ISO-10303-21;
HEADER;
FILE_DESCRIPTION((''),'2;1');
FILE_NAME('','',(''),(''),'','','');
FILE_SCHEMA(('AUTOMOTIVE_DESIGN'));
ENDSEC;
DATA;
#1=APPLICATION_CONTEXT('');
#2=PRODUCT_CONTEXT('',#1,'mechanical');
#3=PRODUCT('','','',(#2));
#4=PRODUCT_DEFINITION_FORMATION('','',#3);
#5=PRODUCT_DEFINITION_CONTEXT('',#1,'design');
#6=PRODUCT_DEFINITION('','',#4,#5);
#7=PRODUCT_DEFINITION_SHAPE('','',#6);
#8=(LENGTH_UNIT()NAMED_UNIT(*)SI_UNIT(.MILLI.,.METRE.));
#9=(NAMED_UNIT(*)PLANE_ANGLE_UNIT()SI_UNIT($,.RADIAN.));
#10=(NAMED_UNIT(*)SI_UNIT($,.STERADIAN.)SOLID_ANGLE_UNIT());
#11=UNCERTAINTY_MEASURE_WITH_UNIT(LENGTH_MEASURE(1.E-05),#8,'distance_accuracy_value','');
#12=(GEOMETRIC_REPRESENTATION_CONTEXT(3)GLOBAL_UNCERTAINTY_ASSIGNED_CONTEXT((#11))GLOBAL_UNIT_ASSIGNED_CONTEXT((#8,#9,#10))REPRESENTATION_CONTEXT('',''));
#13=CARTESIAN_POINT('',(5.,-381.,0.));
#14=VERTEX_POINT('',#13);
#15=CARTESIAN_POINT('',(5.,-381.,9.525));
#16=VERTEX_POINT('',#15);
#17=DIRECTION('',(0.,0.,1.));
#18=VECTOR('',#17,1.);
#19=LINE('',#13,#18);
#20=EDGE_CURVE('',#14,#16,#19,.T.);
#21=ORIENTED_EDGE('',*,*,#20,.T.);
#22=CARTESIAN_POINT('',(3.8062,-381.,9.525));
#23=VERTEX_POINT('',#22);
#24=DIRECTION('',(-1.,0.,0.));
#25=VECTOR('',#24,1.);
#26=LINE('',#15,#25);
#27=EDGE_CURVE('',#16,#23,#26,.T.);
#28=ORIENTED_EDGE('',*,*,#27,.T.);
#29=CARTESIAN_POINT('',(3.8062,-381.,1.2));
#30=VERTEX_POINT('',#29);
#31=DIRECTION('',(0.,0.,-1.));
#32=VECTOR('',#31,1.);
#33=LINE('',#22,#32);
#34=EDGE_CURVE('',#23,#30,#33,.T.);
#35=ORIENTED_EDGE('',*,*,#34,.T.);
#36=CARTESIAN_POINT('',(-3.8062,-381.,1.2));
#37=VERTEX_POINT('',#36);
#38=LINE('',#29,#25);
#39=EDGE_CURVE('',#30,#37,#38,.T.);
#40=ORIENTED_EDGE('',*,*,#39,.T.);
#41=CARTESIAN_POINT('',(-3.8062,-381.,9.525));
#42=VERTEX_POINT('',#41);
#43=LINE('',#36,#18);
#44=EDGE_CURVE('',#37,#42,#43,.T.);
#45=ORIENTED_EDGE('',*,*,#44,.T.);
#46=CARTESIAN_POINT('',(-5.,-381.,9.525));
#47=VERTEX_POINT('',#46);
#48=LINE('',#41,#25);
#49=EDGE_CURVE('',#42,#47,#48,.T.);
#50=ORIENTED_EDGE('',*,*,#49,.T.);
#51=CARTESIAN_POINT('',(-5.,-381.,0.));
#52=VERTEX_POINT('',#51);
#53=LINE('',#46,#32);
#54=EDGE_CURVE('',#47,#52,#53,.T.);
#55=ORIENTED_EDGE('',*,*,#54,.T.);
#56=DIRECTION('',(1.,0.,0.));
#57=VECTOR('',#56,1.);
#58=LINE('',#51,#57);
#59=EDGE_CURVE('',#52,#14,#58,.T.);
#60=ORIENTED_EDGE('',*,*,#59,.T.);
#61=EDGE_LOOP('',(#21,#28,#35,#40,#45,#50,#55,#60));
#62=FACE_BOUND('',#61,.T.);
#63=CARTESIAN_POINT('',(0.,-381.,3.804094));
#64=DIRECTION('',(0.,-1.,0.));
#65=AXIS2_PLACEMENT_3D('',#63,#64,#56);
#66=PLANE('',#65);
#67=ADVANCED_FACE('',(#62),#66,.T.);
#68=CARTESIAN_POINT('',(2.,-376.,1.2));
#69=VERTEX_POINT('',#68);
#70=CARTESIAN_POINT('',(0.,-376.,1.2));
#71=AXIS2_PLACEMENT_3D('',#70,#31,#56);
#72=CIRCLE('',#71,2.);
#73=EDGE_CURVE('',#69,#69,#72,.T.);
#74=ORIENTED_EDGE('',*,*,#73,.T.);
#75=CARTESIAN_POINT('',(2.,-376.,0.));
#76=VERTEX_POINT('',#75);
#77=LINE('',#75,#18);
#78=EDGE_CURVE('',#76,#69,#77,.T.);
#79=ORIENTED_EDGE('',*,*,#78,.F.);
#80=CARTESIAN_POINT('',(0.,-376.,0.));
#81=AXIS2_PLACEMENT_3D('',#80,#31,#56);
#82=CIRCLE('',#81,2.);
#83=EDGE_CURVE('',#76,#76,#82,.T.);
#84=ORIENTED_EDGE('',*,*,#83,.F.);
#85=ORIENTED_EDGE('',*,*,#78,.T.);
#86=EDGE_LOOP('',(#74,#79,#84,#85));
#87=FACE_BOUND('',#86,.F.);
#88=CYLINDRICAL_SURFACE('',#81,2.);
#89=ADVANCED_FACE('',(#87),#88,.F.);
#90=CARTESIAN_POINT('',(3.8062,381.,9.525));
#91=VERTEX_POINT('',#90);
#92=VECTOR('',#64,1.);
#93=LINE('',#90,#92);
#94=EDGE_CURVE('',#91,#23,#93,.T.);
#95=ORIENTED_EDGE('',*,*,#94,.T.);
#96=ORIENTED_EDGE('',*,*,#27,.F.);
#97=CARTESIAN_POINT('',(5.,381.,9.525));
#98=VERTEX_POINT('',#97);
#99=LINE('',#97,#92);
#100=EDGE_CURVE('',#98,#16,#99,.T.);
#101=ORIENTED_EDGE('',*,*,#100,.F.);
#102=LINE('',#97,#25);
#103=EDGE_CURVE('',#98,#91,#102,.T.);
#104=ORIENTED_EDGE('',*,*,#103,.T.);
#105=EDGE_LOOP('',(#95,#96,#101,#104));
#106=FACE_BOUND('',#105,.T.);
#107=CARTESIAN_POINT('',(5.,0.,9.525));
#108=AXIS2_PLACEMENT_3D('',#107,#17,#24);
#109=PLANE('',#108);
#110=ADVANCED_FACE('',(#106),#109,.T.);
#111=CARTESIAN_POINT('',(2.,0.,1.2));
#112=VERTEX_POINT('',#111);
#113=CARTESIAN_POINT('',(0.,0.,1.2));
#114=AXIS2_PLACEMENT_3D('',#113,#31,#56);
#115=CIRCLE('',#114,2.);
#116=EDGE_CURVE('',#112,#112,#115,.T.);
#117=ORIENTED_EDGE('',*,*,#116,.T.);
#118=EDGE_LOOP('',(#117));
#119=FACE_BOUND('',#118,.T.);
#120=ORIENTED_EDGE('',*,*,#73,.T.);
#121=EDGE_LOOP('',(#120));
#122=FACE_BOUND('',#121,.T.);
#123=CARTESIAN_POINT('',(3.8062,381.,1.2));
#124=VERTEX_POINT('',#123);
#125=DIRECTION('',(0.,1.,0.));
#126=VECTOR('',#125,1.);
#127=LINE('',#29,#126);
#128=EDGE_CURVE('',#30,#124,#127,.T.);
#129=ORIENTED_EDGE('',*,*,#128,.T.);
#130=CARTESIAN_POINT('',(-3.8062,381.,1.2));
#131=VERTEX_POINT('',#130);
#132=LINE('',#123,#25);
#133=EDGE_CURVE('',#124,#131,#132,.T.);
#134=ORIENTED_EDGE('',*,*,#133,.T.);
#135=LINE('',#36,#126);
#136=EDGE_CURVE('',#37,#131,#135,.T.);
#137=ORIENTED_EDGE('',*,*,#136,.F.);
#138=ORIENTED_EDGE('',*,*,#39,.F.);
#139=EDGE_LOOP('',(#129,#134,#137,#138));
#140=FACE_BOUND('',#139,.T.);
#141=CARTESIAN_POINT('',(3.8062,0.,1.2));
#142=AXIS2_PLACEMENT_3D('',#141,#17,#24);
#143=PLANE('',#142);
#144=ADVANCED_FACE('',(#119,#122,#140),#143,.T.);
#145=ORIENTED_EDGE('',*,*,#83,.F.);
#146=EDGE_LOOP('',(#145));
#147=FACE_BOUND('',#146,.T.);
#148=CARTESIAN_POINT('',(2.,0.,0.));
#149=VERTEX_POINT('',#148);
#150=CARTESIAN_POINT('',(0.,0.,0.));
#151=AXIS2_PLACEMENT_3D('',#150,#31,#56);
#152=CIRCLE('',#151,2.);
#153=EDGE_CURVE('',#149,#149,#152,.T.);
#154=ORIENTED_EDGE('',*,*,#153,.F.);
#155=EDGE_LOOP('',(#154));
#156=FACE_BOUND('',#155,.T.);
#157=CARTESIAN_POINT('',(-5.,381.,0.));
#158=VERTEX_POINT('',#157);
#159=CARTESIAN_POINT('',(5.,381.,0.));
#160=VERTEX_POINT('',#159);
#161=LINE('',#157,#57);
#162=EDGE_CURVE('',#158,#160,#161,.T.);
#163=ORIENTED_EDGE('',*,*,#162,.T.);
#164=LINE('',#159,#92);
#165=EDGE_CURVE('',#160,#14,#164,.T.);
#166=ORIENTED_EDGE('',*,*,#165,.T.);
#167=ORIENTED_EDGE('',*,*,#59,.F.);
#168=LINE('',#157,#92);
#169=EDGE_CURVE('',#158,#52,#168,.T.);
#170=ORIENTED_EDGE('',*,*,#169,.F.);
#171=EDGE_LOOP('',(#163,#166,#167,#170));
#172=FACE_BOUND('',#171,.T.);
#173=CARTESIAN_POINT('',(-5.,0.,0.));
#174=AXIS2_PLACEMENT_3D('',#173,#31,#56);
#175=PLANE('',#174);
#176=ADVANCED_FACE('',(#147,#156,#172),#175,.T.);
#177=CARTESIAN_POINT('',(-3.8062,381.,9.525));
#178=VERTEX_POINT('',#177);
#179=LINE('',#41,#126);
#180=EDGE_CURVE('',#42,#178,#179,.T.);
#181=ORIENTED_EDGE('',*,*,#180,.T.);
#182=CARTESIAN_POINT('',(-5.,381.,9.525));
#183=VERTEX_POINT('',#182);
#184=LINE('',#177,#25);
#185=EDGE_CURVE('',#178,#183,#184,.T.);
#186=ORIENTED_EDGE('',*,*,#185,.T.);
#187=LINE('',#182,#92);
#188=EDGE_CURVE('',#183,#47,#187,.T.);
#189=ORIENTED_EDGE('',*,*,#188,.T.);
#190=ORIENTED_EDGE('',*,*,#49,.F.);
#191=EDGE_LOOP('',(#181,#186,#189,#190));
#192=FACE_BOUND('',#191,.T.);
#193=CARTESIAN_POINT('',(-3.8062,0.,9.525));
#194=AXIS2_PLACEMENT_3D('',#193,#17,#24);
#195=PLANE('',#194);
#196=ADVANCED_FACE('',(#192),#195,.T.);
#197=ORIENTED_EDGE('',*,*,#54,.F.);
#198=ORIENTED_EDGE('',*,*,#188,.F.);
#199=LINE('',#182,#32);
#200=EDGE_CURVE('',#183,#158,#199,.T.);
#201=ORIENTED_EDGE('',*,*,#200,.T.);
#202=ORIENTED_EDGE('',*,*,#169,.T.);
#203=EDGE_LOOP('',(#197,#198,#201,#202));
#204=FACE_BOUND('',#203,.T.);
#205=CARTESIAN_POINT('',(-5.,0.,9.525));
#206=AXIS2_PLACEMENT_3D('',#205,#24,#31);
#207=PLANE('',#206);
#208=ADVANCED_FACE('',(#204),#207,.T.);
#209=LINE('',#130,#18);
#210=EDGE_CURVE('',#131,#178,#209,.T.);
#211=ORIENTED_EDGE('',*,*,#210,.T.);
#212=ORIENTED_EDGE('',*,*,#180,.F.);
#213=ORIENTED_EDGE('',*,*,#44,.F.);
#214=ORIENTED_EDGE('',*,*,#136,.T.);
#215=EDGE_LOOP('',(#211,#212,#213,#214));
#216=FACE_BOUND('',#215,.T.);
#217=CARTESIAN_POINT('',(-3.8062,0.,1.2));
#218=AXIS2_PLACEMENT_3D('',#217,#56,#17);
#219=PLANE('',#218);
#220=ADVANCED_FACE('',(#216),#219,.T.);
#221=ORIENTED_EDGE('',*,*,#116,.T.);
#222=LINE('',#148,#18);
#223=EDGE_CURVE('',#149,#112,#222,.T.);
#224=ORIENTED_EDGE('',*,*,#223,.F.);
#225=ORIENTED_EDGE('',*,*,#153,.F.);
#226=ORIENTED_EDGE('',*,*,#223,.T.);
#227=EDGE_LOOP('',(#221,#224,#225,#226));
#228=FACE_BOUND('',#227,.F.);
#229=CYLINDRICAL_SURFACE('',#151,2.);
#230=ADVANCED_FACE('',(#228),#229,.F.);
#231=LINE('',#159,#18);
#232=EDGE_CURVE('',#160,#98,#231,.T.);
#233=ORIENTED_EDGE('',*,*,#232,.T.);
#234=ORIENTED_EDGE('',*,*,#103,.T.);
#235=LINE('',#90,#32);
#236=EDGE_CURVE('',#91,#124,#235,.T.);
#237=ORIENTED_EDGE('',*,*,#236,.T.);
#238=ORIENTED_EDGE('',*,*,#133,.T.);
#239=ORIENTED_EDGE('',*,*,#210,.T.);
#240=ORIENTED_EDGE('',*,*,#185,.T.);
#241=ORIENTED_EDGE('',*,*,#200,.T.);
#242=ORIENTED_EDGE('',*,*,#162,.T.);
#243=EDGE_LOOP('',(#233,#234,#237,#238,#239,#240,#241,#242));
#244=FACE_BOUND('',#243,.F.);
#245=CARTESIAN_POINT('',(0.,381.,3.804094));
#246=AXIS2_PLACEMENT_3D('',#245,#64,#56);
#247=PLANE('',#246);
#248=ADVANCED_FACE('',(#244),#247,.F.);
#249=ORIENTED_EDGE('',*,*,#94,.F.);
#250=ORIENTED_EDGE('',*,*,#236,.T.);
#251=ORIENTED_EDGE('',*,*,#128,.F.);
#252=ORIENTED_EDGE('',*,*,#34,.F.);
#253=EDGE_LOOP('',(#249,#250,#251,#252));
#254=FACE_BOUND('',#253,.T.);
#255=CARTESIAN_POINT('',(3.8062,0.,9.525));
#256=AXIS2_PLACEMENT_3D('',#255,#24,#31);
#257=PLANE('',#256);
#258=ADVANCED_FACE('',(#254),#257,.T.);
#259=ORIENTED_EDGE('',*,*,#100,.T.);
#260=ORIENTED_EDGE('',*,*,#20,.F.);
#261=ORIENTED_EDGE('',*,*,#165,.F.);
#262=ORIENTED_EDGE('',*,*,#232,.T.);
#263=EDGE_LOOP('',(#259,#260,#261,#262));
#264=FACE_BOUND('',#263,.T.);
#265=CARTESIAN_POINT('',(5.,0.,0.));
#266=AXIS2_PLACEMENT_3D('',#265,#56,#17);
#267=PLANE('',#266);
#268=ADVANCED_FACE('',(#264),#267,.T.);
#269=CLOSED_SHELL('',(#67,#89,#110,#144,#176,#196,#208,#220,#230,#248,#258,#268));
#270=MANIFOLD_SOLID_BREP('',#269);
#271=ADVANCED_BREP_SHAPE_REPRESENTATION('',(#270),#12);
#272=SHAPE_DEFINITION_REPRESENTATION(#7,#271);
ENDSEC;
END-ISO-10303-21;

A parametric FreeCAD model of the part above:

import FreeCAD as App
import Part
import Sketcher

doc = App.newDocument("Part")
body = doc.addObject("PartDesign::Body", "Body")

sketch1 = body.newObject("Sketcher::SketchObject", "Sketch")
sketch1.AttachmentSupport = (doc.getObject("XZ_Plane"), [""])
sketch1.MapMode = "FlatFace"
sketch1.addGeometry([
    Part.LineSegment(App.Vector(-3.8062, 9.525, 0), App.Vector(-5, 9.525, 0)),
    Part.LineSegment(App.Vector(-5, 9.525, 0), App.Vector(-5, 0, 0)),
    Part.LineSegment(App.Vector(-5, 0, 0), App.Vector(5, 0, 0)),
    Part.LineSegment(App.Vector(5, 0, 0), App.Vector(5, 9.525, 0)),
    Part.LineSegment(App.Vector(5, 9.525, 0), App.Vector(3.8062, 9.525, 0)),
    Part.LineSegment(App.Vector(3.8062, 9.525, 0), App.Vector(3.8062, 1.2, 0)),
    Part.LineSegment(App.Vector(3.8062, 1.2, 0), App.Vector(-3.8062, 1.2, 0)),
    Part.LineSegment(App.Vector(-3.8062, 1.2, 0), App.Vector(-3.8062, 9.525, 0)),
], False)
sketch1.addConstraint([
    Sketcher.Constraint("Coincident", 0, 2, 1, 1),
    Sketcher.Constraint("Coincident", 1, 2, 2, 1),
    Sketcher.Constraint("Coincident", 2, 2, 3, 1),
    Sketcher.Constraint("Coincident", 3, 2, 4, 1),
    Sketcher.Constraint("Coincident", 4, 2, 5, 1),
    Sketcher.Constraint("Coincident", 5, 2, 6, 1),
    Sketcher.Constraint("Coincident", 6, 2, 7, 1),
    Sketcher.Constraint("Coincident", 7, 2, 0, 1),
    Sketcher.Constraint("Horizontal", 0),
    Sketcher.Constraint("Vertical", 1),
    Sketcher.Constraint("Horizontal", 2),
    Sketcher.Constraint("Vertical", 3),
    Sketcher.Constraint("Horizontal", 4),
    Sketcher.Constraint("Vertical", 5),
    Sketcher.Constraint("Horizontal", 6),
    Sketcher.Constraint("Vertical", 7),
    Sketcher.Constraint("Symmetric", 1, 2, 2, 2, -1, 1),
    Sketcher.Constraint("Symmetric", 4, 2, 7, 2, -2),
    Sketcher.Constraint("DistanceX", 2, 1, 2, 2, 10.0),
    Sketcher.Constraint("DistanceY", -1, 1, 5, 2, 1.2),
    Sketcher.Constraint("DistanceY", 1, 2, 1, 1, 9.525),
    Sketcher.Constraint("DistanceX", 0, 2, 0, 1, 1.1938),
])
pad1 = body.newObject("PartDesign::Pad", "Pad")
pad1.Profile = sketch1
pad1.Type = "TwoLengths"
pad1.Length = 381
pad1.Length2 = 381

sketch2 = body.newObject("Sketcher::SketchObject", "Sketch001")
sketch2.AttachmentSupport = (doc.getObject("XY_Plane"), [""])
sketch2.MapMode = "FlatFace"
sketch2.addGeometry(Part.Circle(App.Vector(0, 0, 0), App.Vector(0, 0, 1), 2), False)
sketch2.addConstraint([
    Sketcher.Constraint("Coincident", 0, 3, -1, 1),
    Sketcher.Constraint("Diameter", 0, 4.0),
])
pocket1 = body.newObject("PartDesign::Pocket", "Pocket")
pocket1.Profile = sketch2
pocket1.Type = "ThroughAll"
pocket1.Reversed = True

sketch3 = body.newObject("Sketcher::SketchObject", "Sketch002")
sketch3.AttachmentSupport = (doc.getObject("XY_Plane"), [""])
sketch3.MapMode = "FlatFace"
sketch3.addGeometry(Part.Circle(App.Vector(0, -376, 0), App.Vector(0, 0, 1), 2), False)
sketch3.addConstraint([
    Sketcher.Constraint("PointOnObject", 0, 3, -2),
    Sketcher.Constraint("Diameter", 0, 4.0),
    Sketcher.Constraint("DistanceY", 0, 3, -1, 1, 376.0),
])
pocket2 = body.newObject("PartDesign::Pocket", "Pocket001")
pocket2.Profile = sketch3
pocket2.Type = "ThroughAll"
pocket2.Reversed = True

doc.recompute()
